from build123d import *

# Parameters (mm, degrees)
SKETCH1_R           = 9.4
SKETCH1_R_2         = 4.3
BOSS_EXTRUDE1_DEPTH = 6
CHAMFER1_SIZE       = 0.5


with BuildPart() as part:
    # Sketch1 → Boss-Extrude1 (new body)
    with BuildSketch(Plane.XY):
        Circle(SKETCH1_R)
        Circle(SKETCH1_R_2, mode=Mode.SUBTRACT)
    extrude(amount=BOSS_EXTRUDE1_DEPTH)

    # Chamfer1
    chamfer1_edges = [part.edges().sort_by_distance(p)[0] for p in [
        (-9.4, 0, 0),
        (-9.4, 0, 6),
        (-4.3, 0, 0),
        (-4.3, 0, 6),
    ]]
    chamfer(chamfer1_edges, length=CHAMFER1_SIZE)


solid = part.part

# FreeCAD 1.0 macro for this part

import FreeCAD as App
import Part
import Sketcher


def edges_at(feature, points):
    """Names of the edges that pass closest to the given points."""
    edges = feature.Shape.Edges
    near = lambda p: min(range(len(edges)), key=lambda i: edges[i].distToShape(Part.Vertex(*p))[0])
    return sorted({f"Edge{near(p) + 1}" for p in points})

doc = App.newDocument("Part")
body = doc.addObject("PartDesign::Body", "Body")

sketch1 = body.newObject("Sketcher::SketchObject", "Sketch")
sketch1.AttachmentSupport = (doc.getObject("XY_Plane"), [""])
sketch1.MapMode = "FlatFace"
sketch1.addGeometry(Part.Circle(App.Vector(0, 0, 0), App.Vector(0, 0, 1), 9.4), False)
sketch1.addGeometry(Part.Circle(App.Vector(0, 0, 0), App.Vector(0, 0, 1), 4.3), False)
sketch1.addConstraint(Sketcher.Constraint("Coincident", 0, 3, -1, 1))
sketch1.addConstraint(Sketcher.Constraint("Coincident", 1, 3, -1, 1))
sketch1.addConstraint(Sketcher.Constraint("Diameter", 0, 18.8))
sketch1.addConstraint(Sketcher.Constraint("Diameter", 1, 8.6))
pad1 = body.newObject("PartDesign::Pad", "Pad")
pad1.Profile = sketch1
pad1.Length = 6
doc.recompute()

chamfer = body.newObject("PartDesign::Chamfer", "Chamfer")
chamfer.Base = (pad1, edges_at(pad1, [
    (-9.4, 0, 0),
    (-9.4, 0, 6),
    (-4.3, 0, 0),
    (-4.3, 0, 6),
]))
chamfer.Size = 0.5

doc.recompute()
